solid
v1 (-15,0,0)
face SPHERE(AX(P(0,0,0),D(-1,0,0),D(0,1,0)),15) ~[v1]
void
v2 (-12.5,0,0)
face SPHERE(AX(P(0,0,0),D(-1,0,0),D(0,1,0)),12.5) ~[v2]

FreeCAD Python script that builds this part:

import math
import FreeCAD as App
import Part
import Sketcher

V = App.Vector
Q = App.Units.Quantity

doc = App.newDocument("Part")
body = doc.addObject("PartDesign::Body", "Body")

sketch1 = body.newObject("Sketcher::SketchObject", "Sketch")
sketch1.AttachmentSupport = (doc.getObject("XY_Plane"), [""])
sketch1.MapMode = "FlatFace"
sketch1.addGeometry([
    Part.LineSegment(V(12.5, 0, 0), V(15, 0, 0)),
    Part.ArcOfCircle(Part.Circle(V(0, 0, 0), V(0, 0, 1), 15), math.radians(0), math.radians(180)),
    Part.LineSegment(V(-15, 0, 0), V(-12.5, 0, 0)),
    Part.ArcOfCircle(Part.Circle(V(0, 0, 0), V(0, 0, 1), 12.5), math.radians(0), math.radians(180)),
], False)
sketch1.addConstraint([
    Sketcher.Constraint("Coincident", 0, 2, 1, 1),
    Sketcher.Constraint("Coincident", 1, 2, 2, 1),
    Sketcher.Constraint("Coincident", 2, 2, 3, 2),
    Sketcher.Constraint("Coincident", 3, 1, 0, 1),
    Sketcher.Constraint("Horizontal", 0),
    Sketcher.Constraint("Horizontal", 2),
    Sketcher.Constraint("Coincident", 1, 3, -1, 1),
    Sketcher.Constraint("Coincident", 3, 3, -1, 1),
    Sketcher.Constraint("PointOnObject", 0, 2, -1),
    Sketcher.Constraint("PointOnObject", 1, 2, -1),
    Sketcher.Constraint("Radius", 1, Q("15 mm")),
    Sketcher.Constraint("Radius", 3, Q("12.5 mm")),
])
revolution = body.newObject("PartDesign::Revolution", "Revolution")
revolution.Profile = sketch1
revolution.ReferenceAxis = (sketch1, ["H_Axis"])
revolution.Angle = 360

doc.recompute()
